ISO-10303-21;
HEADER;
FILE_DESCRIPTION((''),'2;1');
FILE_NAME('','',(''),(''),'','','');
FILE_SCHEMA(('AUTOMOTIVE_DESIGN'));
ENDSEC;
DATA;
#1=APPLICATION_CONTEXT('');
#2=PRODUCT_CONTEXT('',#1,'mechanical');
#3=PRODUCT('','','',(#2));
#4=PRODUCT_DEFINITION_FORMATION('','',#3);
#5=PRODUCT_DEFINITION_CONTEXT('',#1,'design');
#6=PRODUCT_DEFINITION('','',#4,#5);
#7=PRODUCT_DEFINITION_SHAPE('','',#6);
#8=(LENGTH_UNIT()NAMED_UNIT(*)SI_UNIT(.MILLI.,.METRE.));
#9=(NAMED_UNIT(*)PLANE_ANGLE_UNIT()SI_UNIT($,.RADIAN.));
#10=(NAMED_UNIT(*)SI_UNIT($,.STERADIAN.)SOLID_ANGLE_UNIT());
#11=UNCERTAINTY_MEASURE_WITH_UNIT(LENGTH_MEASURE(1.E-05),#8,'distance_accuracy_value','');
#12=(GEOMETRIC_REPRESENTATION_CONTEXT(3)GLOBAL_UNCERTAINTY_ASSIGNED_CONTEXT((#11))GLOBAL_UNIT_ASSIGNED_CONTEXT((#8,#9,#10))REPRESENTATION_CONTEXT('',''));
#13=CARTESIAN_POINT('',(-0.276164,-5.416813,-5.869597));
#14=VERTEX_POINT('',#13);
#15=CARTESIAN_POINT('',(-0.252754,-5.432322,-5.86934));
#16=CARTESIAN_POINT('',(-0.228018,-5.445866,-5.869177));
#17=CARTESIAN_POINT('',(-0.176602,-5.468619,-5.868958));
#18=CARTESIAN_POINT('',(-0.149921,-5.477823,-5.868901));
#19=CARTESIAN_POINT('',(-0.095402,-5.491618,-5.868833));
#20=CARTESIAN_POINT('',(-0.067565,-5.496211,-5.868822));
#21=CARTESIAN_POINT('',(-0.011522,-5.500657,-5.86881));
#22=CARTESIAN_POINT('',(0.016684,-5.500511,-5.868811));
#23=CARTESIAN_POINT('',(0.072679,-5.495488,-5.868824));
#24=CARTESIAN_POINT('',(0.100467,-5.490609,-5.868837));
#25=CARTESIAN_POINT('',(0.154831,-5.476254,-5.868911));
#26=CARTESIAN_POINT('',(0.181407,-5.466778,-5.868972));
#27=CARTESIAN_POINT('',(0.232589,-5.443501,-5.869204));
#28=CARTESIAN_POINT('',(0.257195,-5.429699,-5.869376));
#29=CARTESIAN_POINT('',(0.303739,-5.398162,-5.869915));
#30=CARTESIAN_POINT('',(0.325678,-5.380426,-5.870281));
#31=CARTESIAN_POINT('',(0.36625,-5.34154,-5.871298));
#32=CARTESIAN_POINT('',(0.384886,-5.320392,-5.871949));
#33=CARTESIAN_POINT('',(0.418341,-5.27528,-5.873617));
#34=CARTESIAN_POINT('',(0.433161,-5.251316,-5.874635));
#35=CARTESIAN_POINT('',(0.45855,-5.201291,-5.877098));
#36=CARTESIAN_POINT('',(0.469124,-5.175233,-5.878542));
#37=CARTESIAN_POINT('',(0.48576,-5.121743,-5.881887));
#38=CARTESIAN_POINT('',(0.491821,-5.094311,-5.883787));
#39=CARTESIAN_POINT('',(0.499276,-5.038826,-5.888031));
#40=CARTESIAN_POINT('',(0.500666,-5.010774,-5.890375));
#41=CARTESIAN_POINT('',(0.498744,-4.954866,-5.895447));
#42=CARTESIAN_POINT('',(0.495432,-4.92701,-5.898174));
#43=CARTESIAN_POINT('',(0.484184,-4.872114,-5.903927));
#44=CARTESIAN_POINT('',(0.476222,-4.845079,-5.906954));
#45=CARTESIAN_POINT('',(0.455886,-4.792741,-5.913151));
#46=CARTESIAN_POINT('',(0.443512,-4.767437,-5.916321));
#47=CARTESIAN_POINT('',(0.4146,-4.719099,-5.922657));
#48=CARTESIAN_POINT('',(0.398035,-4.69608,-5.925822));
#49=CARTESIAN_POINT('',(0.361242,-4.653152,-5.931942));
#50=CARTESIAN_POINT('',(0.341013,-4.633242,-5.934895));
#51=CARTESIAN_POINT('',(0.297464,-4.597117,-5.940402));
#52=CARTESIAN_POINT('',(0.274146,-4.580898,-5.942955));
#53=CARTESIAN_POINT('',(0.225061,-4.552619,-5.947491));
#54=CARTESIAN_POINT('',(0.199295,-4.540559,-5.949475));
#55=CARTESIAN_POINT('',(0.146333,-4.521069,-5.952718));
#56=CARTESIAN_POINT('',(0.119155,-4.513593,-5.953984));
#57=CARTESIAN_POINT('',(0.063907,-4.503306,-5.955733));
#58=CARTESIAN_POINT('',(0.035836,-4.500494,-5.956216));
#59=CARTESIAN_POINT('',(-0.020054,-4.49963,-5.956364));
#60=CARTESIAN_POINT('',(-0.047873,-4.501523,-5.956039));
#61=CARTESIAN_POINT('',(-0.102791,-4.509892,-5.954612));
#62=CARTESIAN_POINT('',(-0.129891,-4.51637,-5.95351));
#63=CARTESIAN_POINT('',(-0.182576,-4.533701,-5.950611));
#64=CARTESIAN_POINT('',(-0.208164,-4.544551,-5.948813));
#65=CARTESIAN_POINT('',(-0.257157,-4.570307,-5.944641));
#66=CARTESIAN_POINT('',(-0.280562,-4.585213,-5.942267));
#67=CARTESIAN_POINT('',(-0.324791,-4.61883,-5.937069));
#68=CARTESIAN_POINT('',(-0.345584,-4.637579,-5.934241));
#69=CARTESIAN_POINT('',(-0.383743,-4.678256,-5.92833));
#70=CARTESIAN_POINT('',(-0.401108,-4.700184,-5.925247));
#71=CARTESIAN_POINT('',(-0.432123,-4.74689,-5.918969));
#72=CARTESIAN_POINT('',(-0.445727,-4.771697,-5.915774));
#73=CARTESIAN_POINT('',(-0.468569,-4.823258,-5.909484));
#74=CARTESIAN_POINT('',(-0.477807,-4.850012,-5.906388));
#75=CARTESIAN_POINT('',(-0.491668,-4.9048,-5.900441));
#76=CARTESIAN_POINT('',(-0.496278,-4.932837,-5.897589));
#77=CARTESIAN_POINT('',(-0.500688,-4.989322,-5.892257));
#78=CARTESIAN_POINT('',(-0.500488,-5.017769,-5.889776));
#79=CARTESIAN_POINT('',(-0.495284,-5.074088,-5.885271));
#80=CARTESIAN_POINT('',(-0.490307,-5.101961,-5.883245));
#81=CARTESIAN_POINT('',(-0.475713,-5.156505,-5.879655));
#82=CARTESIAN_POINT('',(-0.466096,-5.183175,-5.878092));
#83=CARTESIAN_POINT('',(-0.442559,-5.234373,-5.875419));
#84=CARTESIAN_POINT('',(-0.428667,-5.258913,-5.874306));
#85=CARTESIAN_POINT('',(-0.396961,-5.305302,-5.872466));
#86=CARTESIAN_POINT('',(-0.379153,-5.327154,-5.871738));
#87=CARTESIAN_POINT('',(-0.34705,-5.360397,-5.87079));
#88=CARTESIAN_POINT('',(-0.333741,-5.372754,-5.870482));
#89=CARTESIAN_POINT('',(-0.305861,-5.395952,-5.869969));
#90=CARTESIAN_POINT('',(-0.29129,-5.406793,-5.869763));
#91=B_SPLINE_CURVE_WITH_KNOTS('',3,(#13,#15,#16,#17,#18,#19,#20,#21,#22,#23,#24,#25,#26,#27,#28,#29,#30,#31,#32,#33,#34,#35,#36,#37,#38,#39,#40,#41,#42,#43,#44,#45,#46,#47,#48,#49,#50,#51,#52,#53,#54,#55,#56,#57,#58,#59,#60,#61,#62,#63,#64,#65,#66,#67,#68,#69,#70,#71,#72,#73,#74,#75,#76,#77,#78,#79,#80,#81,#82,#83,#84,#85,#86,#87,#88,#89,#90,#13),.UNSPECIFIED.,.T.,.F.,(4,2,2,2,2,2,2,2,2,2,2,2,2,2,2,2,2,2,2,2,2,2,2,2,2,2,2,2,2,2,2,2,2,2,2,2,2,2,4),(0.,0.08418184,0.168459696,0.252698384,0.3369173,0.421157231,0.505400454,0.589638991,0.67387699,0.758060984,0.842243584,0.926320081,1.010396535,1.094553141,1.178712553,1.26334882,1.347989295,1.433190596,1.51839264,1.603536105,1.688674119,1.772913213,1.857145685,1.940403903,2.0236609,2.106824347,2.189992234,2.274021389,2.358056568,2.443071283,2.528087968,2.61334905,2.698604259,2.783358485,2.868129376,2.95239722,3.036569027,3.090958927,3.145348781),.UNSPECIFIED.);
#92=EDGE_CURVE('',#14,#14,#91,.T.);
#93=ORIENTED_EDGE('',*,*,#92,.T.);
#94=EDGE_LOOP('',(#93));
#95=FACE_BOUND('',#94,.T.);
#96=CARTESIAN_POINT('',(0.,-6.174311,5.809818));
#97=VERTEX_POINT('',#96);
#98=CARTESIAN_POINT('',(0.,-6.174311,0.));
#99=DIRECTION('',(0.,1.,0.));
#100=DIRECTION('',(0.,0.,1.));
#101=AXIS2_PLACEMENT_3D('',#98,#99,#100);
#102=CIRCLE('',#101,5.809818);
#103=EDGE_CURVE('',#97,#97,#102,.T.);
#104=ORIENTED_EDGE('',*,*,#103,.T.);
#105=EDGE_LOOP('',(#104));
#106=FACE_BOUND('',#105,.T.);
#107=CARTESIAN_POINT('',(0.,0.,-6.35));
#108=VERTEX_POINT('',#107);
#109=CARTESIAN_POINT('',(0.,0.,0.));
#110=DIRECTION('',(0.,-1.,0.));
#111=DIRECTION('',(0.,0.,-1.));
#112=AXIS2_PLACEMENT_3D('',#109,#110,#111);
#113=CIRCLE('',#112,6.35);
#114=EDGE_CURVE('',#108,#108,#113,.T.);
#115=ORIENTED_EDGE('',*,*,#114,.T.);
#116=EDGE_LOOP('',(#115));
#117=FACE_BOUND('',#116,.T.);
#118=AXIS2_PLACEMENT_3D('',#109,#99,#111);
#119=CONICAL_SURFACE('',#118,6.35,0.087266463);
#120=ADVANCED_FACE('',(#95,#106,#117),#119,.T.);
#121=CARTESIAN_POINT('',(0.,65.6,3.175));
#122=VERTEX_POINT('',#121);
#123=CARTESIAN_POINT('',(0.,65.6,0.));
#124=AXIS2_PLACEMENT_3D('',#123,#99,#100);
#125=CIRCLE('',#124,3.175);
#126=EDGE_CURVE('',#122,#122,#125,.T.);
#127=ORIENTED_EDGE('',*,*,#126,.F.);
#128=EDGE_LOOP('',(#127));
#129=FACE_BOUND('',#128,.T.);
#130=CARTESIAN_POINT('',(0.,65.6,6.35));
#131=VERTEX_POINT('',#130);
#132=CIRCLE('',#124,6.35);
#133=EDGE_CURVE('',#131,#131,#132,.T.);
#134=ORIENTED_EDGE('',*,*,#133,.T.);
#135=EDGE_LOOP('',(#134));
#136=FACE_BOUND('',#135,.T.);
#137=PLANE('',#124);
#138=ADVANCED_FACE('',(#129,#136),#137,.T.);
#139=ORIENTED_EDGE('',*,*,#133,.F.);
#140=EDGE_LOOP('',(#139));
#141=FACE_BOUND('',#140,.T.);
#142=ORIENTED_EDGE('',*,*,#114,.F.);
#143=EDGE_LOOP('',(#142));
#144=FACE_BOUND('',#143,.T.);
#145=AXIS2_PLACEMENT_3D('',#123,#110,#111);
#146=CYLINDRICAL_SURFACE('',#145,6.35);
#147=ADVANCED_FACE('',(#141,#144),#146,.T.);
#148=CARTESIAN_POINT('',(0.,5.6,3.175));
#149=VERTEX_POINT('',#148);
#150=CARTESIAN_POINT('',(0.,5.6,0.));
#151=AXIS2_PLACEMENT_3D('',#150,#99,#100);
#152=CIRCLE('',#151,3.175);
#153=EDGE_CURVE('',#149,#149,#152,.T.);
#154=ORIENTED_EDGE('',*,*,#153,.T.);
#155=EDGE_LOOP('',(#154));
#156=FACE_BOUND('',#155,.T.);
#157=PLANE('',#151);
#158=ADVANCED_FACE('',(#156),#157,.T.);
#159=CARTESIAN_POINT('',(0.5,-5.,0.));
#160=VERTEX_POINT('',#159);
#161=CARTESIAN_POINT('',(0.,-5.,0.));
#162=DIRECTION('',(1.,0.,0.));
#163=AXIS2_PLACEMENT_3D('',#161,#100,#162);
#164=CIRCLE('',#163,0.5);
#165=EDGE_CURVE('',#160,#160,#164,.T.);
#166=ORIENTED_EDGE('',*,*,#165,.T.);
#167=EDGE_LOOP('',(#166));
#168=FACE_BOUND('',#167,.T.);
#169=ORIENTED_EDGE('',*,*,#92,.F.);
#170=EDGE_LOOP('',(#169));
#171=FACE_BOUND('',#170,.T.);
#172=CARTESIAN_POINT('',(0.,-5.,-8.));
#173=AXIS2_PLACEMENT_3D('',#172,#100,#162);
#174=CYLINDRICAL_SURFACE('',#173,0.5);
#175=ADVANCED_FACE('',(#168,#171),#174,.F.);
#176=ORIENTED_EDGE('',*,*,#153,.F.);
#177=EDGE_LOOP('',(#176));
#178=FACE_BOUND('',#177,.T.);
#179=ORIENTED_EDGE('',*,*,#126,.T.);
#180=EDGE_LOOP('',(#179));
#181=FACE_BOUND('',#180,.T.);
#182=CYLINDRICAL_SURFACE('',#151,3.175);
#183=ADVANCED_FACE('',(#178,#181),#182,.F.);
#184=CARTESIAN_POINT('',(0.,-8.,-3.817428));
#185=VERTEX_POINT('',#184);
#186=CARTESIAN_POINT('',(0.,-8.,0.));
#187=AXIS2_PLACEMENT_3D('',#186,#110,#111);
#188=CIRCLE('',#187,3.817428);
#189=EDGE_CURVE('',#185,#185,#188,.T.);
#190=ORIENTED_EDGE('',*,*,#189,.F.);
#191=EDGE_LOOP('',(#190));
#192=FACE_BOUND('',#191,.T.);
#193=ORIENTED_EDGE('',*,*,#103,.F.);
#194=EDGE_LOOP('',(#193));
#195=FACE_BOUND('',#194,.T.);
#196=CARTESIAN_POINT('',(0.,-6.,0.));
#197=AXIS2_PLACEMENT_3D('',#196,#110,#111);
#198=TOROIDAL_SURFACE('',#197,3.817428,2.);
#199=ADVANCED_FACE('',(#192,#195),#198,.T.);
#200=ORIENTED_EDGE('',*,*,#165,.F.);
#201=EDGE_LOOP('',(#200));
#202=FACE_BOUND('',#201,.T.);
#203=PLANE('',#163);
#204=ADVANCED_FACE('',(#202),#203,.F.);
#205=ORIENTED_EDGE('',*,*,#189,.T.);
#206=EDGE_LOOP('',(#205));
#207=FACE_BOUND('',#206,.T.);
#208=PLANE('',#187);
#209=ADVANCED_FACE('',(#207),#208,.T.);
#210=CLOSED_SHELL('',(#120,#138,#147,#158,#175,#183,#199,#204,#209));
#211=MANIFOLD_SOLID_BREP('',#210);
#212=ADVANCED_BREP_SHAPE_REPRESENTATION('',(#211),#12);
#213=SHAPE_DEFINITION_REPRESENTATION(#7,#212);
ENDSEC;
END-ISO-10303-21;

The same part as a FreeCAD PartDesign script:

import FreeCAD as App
import Part
import Sketcher
Q = App.Units.Quantity


def edges_at(feature, points):
    """Names of the edges that pass closest to the given points."""
    edges = feature.Shape.Edges
    near = lambda p: min(range(len(edges)), key=lambda i: edges[i].distToShape(Part.Vertex(*p))[0])
    return sorted({f"Edge{near(p) + 1}" for p in points})

doc = App.newDocument("Part")
params = doc.addObject("Spreadsheet::Sheet", "Params")
for row, (alias, value) in enumerate([
    ("sketch1_diameter", "12.7 mm"),
    ("pad1_length", "65.6 mm"),
    ("sketch2_diameter", "6.35 mm"),
    ("pocket1_length", "60 mm"),
    ("sketch3_diameter", "12.7 mm"),
    ("pad2_length", "8 mm"),
    ("pad2_taper", "-5 deg"),
    ("fillet_radius", "2 mm"),
    ("sketch4_diameter", "1 mm"),
    ("pocket2_length", "8 mm"),
], start=1):
    params.set(f"A{row}", alias)
    params.set(f"B{row}", "=" + value)
    params.setAlias(f"B{row}", alias)

body = doc.addObject("PartDesign::Body", "Body")

sketch1 = doc.addObject("Sketcher::SketchObject", "Sketch")
body.addObject(sketch1)
sketch1.AttachmentSupport = (doc.XZ_Plane, [""])
sketch1.MapMode = "FlatFace"
sketch1.addGeometry(Part.Circle(App.Vector(0, 0, 0), App.Vector(0, 0, 1), 6.35), False)
sketch1.addConstraint([
    Sketcher.Constraint("Coincident", 0, 3, -1, 1),
    Sketcher.Constraint("Diameter", 0, Q("12.7 mm")),
])
sketch1.setExpression("Constraints[1]", "Params.sketch1_diameter")
pad1 = doc.addObject("PartDesign::Pad", "Pad")
body.addObject(pad1)
pad1.Profile = sketch1
pad1.setExpression("Length", "Params.pad1_length")
pad1.Reversed = True

sketch2 = doc.addObject("Sketcher::SketchObject", "Sketch001")
body.addObject(sketch2)
sketch2.AttachmentSupport = (doc.XZ_Plane, [""])
sketch2.MapMode = "FlatFace"
sketch2.AttachmentOffset = App.Placement(App.Vector(0, 0, -65.6), App.Rotation())
sketch2.addGeometry(Part.Circle(App.Vector(0, 0, 0), App.Vector(0, 0, 1), 3.175), False)
sketch2.addConstraint([
    Sketcher.Constraint("Coincident", 0, 3, -1, 1),
    Sketcher.Constraint("Diameter", 0, Q("6.35 mm")),
])
sketch2.setExpression("Constraints[1]", "Params.sketch2_diameter")
pocket1 = doc.addObject("PartDesign::Pocket", "Pocket")
body.addObject(pocket1)
pocket1.Profile = sketch2
pocket1.setExpression("Length", "Params.pocket1_length")
pocket1.Reversed = True

sketch3 = doc.addObject("Sketcher::SketchObject", "Sketch002")
body.addObject(sketch3)
sketch3.AttachmentSupport = (doc.XZ_Plane, [""])
sketch3.MapMode = "FlatFace"
sketch3.addGeometry(Part.Circle(App.Vector(0, 0, 0), App.Vector(0, 0, 1), 6.35), False)
sketch3.addConstraint([
    Sketcher.Constraint("Coincident", 0, 3, -1, 1),
    Sketcher.Constraint("Diameter", 0, Q("12.7 mm")),
])
sketch3.setExpression("Constraints[1]", "Params.sketch3_diameter")
pad2 = doc.addObject("PartDesign::Pad", "Pad001")
body.addObject(pad2)
pad2.Profile = sketch3
pad2.setExpression("Length", "Params.pad2_length")
pad2.setExpression("TaperAngle", "Params.pad2_taper")
doc.recompute()

fillet = doc.addObject("PartDesign::Fillet", "Fillet")
body.addObject(fillet)
fillet.Base = (pad2, edges_at(pad2, [(0, -8, 5.65)]))
fillet.setExpression("Radius", "Params.fillet_radius")

sketch4 = doc.addObject("Sketcher::SketchObject", "Sketch003")
body.addObject(sketch4)
sketch4.AttachmentSupport = (doc.XY_Plane, [""])
sketch4.MapMode = "FlatFace"
sketch4.addGeometry(Part.Circle(App.Vector(0, -5, 0), App.Vector(0, 0, 1), 0.5), False)
sketch4.addConstraint([
    Sketcher.Constraint("PointOnObject", 0, 3, -2),
    Sketcher.Constraint("Diameter", 0, Q("1 mm")),
    Sketcher.Constraint("DistanceY", 0, 3, -1, 1, Q("5 mm")),
])
sketch4.setExpression("Constraints[1]", "Params.sketch4_diameter")
pocket2 = doc.addObject("PartDesign::Pocket", "Pocket001")
body.addObject(pocket2)
pocket2.Profile = sketch4
pocket2.setExpression("Length", "Params.pocket2_length")

doc.recompute()
